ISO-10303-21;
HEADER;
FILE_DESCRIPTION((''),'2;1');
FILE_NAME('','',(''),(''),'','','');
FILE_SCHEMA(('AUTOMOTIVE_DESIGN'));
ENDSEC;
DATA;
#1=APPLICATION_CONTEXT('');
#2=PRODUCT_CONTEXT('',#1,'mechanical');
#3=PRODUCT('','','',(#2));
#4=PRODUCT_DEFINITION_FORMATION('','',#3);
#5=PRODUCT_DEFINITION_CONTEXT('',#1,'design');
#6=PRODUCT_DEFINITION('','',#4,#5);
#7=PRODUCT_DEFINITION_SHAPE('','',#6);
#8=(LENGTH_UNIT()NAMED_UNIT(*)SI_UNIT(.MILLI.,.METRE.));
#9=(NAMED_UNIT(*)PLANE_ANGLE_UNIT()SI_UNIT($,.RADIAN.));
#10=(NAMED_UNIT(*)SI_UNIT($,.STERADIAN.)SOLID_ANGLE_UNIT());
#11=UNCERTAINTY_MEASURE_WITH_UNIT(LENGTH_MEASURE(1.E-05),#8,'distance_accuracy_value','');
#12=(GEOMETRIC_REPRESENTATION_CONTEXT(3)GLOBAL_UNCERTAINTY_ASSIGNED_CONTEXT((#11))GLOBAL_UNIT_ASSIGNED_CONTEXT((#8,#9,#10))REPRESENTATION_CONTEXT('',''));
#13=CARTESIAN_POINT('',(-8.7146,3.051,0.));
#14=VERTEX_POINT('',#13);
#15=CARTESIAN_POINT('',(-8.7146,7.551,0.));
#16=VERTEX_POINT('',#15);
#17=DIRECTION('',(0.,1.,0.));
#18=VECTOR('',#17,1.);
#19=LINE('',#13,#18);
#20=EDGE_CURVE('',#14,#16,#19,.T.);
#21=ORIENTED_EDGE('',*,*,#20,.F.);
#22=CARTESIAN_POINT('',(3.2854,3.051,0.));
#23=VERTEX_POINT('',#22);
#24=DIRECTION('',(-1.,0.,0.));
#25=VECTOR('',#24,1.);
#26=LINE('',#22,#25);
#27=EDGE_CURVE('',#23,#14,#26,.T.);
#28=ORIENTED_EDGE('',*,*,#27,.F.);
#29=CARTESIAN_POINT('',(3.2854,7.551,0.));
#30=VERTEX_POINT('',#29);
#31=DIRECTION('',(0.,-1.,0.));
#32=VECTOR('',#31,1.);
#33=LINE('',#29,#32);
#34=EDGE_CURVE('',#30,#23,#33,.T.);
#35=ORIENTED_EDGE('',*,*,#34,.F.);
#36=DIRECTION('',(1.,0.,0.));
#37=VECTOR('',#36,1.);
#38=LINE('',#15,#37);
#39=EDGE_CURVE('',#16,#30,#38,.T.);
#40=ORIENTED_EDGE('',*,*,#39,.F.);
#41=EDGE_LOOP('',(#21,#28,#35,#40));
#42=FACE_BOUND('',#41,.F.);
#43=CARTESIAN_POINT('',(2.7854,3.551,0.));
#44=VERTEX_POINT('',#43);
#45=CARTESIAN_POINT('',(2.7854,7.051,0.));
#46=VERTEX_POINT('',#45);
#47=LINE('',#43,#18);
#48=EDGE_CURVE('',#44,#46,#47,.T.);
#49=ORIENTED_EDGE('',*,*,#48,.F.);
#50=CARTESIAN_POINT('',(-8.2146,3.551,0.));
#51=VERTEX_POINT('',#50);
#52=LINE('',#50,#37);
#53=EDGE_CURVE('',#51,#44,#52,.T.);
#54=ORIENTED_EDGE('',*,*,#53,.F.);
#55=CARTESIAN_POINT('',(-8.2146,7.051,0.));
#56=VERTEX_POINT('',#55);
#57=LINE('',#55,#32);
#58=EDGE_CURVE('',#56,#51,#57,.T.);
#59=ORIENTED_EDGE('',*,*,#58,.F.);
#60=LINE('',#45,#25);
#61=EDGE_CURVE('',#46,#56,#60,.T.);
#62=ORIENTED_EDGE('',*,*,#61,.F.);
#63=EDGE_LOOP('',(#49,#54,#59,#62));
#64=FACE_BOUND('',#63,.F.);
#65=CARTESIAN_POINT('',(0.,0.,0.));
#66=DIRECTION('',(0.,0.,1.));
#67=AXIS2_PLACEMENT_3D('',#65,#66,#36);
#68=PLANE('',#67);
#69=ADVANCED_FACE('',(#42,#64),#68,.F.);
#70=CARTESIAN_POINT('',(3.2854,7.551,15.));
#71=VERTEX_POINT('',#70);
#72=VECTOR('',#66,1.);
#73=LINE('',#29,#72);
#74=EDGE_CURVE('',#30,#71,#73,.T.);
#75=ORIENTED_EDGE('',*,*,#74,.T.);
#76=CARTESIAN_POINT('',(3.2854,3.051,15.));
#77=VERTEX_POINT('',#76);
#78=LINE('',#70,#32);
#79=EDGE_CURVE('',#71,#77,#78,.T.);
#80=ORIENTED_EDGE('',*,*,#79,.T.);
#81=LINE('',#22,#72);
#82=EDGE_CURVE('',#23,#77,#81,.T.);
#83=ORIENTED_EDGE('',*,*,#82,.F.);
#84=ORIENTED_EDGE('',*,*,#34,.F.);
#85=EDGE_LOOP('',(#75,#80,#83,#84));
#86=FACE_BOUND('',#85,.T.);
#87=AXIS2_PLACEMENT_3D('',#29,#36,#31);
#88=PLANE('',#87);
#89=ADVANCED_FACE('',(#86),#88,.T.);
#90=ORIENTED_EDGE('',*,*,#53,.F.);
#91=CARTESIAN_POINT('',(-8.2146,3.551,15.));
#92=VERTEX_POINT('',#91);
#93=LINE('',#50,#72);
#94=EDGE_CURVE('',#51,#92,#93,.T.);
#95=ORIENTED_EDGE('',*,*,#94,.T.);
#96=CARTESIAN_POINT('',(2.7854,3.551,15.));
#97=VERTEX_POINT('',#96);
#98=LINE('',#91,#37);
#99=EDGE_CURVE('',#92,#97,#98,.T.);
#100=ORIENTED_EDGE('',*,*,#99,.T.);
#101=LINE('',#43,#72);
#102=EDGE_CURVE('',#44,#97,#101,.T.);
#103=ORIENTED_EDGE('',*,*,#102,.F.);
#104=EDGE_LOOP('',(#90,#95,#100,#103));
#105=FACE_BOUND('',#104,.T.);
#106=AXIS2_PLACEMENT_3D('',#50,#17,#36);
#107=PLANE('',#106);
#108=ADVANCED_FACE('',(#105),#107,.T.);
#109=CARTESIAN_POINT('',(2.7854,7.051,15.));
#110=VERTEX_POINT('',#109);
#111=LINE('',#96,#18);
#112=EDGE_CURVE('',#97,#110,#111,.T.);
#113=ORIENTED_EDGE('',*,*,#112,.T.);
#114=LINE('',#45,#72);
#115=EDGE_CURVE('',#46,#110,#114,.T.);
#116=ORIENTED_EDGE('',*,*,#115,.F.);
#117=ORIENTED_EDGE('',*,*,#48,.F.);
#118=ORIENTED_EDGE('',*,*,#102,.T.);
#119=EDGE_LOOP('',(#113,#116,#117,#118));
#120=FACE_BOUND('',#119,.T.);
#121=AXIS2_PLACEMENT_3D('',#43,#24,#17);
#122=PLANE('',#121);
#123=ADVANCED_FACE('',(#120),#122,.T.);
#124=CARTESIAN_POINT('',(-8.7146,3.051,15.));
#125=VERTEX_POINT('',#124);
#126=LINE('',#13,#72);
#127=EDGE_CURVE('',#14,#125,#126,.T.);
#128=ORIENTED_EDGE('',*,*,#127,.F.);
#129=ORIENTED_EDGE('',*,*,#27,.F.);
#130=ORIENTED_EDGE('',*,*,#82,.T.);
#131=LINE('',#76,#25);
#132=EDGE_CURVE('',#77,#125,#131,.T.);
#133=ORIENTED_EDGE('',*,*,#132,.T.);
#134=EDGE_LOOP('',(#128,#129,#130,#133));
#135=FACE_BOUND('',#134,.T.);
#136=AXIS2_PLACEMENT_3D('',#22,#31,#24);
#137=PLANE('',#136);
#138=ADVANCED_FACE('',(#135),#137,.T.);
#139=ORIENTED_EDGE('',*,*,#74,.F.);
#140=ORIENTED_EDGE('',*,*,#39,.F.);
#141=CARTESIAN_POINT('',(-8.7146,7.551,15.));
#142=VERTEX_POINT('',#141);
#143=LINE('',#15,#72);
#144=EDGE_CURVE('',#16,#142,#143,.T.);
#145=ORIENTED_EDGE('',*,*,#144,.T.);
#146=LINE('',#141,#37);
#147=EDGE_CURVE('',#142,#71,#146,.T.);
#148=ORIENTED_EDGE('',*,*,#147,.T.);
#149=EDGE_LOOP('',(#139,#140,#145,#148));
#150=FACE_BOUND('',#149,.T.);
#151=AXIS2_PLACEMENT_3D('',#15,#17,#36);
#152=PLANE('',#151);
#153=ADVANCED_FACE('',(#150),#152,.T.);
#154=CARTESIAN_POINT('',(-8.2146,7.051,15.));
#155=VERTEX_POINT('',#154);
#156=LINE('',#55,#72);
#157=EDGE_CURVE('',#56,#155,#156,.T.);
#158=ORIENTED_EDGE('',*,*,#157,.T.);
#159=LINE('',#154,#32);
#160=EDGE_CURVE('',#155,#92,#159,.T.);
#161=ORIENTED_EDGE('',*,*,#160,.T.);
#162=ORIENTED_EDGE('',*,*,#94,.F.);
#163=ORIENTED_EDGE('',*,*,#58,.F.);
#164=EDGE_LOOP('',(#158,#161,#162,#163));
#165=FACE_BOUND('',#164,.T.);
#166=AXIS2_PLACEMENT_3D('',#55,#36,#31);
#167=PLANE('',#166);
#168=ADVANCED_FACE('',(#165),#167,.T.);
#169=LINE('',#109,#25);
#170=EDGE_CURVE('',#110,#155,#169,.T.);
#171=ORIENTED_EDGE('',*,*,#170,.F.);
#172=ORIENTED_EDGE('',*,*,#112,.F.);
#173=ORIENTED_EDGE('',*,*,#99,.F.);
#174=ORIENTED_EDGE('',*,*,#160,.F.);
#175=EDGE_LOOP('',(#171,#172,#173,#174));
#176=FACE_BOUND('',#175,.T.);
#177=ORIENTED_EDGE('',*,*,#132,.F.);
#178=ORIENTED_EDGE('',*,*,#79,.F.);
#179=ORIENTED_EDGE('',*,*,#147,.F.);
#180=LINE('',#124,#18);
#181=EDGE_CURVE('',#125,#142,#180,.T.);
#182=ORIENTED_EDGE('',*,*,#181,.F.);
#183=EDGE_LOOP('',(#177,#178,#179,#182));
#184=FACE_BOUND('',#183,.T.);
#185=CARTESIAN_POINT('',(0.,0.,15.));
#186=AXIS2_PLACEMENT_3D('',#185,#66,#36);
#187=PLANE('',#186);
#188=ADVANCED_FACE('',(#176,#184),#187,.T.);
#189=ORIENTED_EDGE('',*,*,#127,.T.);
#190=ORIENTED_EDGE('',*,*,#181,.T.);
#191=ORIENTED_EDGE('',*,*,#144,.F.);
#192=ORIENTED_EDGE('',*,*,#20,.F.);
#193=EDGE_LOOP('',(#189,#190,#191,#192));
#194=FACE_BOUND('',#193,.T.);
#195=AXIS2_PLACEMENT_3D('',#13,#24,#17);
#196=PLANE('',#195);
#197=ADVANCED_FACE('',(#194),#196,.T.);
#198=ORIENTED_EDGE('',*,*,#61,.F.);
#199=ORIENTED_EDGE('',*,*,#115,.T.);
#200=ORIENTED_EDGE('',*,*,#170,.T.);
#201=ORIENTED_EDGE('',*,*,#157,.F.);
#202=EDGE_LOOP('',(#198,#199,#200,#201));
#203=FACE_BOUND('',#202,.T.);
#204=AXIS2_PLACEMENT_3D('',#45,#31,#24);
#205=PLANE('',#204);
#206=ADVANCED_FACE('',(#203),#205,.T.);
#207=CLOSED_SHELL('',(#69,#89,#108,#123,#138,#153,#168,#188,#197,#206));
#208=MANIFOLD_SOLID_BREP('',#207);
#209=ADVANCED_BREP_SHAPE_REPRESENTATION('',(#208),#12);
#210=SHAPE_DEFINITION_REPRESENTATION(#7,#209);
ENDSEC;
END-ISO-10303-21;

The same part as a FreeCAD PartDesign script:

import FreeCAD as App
import Part
import Sketcher
from FreeCAD import Vector
Q = App.Units.Quantity

doc = App.newDocument("Part")
body = doc.addObject("PartDesign::Body", "Body")

# Sketch on XY plane
sketch1 = body.newObject("Sketcher::SketchObject", "Sketch")
sketch1.AttachmentSupport = (doc.getObject("XY_Plane"), [""])
sketch1.MapMode = "FlatFace"
sketch1.addGeometry([
    Part.LineSegment(Vector(3.2854, 7.551, 0), Vector(-8.7146, 7.551, 0)),  # 0
    Part.LineSegment(Vector(-8.7146, 7.551, 0), Vector(-8.7146, 3.051, 0)),  # 1
    Part.LineSegment(Vector(-8.7146, 3.051, 0), Vector(3.2854, 3.051, 0)),  # 2
    Part.LineSegment(Vector(3.2854, 3.051, 0), Vector(3.2854, 7.551, 0)),  # 3
    Part.LineSegment(Vector(-8.2146, 7.051, 0), Vector(2.7854, 7.051, 0)),  # 4
    Part.LineSegment(Vector(2.7854, 7.051, 0), Vector(2.7854, 3.551, 0)),  # 5
    Part.LineSegment(Vector(2.7854, 3.551, 0), Vector(-8.2146, 3.551, 0)),  # 6
    Part.LineSegment(Vector(-8.2146, 3.551, 0), Vector(-8.2146, 7.051, 0)),  # 7
], False)
sketch1.addConstraint([
    Sketcher.Constraint("Coincident", 0, 2, 1, 1),
    Sketcher.Constraint("Coincident", 1, 2, 2, 1),
    Sketcher.Constraint("Coincident", 2, 2, 3, 1),
    Sketcher.Constraint("Coincident", 3, 2, 0, 1),
    Sketcher.Constraint("Coincident", 4, 2, 5, 1),
    Sketcher.Constraint("Coincident", 5, 2, 6, 1),
    Sketcher.Constraint("Coincident", 6, 2, 7, 1),
    Sketcher.Constraint("Coincident", 7, 2, 4, 1),
    Sketcher.Constraint("Horizontal", 0),
    Sketcher.Constraint("Vertical", 1),
    Sketcher.Constraint("Horizontal", 2),
    Sketcher.Constraint("Vertical", 3),
    Sketcher.Constraint("Horizontal", 4),
    Sketcher.Constraint("Vertical", 5),
    Sketcher.Constraint("Horizontal", 6),
    Sketcher.Constraint("Vertical", 7),
    Sketcher.Constraint("DistanceX", 0, 2, 0, 1, Q("12 mm")),
    Sketcher.Constraint("DistanceY", 1, 2, 1, 1, Q("4.5 mm")),
    Sketcher.Constraint("DistanceX", 4, 2, 3, 2, Q("0.5 mm")),
    Sketcher.Constraint("DistanceY", 4, 2, 3, 2, Q("0.5 mm")),
    Sketcher.Constraint("DistanceY", 2, 2, 5, 2, Q("0.5 mm")),
    Sketcher.Constraint("DistanceX", 1, 2, 6, 2, Q("0.5 mm")),
    Sketcher.Constraint("DistanceY", -1, 1, 0, 2, Q("7.551 mm")),
    Sketcher.Constraint("DistanceX", 0, 2, -1, 1, Q("8.7146 mm")),
])
pad1 = body.newObject("PartDesign::Pad", "Pad")
pad1.Profile = sketch1
pad1.Length = 15

doc.recompute()
